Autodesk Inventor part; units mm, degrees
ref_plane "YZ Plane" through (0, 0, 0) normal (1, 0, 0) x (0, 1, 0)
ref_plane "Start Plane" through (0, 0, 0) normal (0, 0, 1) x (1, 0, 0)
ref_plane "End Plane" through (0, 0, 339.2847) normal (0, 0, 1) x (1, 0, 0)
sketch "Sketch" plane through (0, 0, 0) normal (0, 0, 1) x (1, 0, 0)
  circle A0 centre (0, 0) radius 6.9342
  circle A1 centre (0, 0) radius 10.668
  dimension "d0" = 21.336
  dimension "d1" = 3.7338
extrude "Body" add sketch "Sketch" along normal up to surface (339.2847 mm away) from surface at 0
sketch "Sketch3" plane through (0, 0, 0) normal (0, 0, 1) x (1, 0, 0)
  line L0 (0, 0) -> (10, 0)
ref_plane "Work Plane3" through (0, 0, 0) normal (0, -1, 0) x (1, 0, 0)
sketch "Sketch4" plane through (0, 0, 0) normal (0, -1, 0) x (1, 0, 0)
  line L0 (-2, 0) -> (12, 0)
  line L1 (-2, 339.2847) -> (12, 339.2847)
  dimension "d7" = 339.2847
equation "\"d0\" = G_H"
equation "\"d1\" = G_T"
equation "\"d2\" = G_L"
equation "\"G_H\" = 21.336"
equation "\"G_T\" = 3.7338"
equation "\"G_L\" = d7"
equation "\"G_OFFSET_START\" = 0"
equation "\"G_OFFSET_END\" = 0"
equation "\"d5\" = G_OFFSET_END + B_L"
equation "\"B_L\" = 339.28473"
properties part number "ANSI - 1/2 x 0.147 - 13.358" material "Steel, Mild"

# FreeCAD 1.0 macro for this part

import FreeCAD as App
import Part
import Sketcher
Q = App.Units.Quantity

doc = App.newDocument("Part")
params = doc.addObject("Spreadsheet::Sheet", "Params")
for row, (alias, value) in enumerate([
    ("sketch1_diameter", "0.84 in"),
    ("sketch1_diameter2", "0.546 in"),
    ("pad1_length", "339.2847 mm"),
], start=1):
    params.set(f"A{row}", alias)
    params.set(f"B{row}", "=" + value)
    params.setAlias(f"B{row}", alias)

body = doc.addObject("PartDesign::Body", "Body")

# Sketch on XY plane
sketch1 = doc.addObject("Sketcher::SketchObject", "Sketch")
body.addObject(sketch1)
sketch1.AttachmentSupport = (doc.XY_Plane, [""])
sketch1.MapMode = "FlatFace"
sketch1.addGeometry([
    Part.Circle(App.Vector(0, 0, 0), App.Vector(0, 0, 1), 11),
    Part.Circle(App.Vector(0, 0, 0), App.Vector(0, 0, 1), 7),
], False)
sketch1.addConstraint([
    Sketcher.Constraint("Coincident", 0, 3, -1, 1),
    Sketcher.Constraint("Coincident", 1, 3, -1, 1),
    Sketcher.Constraint("Diameter", 0, Q("0.84 in")),
    Sketcher.Constraint("Diameter", 1, Q("0.546 in")),
])
sketch1.setExpression("Constraints[2]", "Params.sketch1_diameter")
sketch1.setExpression("Constraints[3]", "Params.sketch1_diameter2")
pad1 = doc.addObject("PartDesign::Pad", "Pad")
body.addObject(pad1)
pad1.Profile = sketch1
pad1.setExpression("Length", "Params.pad1_length")

doc.recompute()
